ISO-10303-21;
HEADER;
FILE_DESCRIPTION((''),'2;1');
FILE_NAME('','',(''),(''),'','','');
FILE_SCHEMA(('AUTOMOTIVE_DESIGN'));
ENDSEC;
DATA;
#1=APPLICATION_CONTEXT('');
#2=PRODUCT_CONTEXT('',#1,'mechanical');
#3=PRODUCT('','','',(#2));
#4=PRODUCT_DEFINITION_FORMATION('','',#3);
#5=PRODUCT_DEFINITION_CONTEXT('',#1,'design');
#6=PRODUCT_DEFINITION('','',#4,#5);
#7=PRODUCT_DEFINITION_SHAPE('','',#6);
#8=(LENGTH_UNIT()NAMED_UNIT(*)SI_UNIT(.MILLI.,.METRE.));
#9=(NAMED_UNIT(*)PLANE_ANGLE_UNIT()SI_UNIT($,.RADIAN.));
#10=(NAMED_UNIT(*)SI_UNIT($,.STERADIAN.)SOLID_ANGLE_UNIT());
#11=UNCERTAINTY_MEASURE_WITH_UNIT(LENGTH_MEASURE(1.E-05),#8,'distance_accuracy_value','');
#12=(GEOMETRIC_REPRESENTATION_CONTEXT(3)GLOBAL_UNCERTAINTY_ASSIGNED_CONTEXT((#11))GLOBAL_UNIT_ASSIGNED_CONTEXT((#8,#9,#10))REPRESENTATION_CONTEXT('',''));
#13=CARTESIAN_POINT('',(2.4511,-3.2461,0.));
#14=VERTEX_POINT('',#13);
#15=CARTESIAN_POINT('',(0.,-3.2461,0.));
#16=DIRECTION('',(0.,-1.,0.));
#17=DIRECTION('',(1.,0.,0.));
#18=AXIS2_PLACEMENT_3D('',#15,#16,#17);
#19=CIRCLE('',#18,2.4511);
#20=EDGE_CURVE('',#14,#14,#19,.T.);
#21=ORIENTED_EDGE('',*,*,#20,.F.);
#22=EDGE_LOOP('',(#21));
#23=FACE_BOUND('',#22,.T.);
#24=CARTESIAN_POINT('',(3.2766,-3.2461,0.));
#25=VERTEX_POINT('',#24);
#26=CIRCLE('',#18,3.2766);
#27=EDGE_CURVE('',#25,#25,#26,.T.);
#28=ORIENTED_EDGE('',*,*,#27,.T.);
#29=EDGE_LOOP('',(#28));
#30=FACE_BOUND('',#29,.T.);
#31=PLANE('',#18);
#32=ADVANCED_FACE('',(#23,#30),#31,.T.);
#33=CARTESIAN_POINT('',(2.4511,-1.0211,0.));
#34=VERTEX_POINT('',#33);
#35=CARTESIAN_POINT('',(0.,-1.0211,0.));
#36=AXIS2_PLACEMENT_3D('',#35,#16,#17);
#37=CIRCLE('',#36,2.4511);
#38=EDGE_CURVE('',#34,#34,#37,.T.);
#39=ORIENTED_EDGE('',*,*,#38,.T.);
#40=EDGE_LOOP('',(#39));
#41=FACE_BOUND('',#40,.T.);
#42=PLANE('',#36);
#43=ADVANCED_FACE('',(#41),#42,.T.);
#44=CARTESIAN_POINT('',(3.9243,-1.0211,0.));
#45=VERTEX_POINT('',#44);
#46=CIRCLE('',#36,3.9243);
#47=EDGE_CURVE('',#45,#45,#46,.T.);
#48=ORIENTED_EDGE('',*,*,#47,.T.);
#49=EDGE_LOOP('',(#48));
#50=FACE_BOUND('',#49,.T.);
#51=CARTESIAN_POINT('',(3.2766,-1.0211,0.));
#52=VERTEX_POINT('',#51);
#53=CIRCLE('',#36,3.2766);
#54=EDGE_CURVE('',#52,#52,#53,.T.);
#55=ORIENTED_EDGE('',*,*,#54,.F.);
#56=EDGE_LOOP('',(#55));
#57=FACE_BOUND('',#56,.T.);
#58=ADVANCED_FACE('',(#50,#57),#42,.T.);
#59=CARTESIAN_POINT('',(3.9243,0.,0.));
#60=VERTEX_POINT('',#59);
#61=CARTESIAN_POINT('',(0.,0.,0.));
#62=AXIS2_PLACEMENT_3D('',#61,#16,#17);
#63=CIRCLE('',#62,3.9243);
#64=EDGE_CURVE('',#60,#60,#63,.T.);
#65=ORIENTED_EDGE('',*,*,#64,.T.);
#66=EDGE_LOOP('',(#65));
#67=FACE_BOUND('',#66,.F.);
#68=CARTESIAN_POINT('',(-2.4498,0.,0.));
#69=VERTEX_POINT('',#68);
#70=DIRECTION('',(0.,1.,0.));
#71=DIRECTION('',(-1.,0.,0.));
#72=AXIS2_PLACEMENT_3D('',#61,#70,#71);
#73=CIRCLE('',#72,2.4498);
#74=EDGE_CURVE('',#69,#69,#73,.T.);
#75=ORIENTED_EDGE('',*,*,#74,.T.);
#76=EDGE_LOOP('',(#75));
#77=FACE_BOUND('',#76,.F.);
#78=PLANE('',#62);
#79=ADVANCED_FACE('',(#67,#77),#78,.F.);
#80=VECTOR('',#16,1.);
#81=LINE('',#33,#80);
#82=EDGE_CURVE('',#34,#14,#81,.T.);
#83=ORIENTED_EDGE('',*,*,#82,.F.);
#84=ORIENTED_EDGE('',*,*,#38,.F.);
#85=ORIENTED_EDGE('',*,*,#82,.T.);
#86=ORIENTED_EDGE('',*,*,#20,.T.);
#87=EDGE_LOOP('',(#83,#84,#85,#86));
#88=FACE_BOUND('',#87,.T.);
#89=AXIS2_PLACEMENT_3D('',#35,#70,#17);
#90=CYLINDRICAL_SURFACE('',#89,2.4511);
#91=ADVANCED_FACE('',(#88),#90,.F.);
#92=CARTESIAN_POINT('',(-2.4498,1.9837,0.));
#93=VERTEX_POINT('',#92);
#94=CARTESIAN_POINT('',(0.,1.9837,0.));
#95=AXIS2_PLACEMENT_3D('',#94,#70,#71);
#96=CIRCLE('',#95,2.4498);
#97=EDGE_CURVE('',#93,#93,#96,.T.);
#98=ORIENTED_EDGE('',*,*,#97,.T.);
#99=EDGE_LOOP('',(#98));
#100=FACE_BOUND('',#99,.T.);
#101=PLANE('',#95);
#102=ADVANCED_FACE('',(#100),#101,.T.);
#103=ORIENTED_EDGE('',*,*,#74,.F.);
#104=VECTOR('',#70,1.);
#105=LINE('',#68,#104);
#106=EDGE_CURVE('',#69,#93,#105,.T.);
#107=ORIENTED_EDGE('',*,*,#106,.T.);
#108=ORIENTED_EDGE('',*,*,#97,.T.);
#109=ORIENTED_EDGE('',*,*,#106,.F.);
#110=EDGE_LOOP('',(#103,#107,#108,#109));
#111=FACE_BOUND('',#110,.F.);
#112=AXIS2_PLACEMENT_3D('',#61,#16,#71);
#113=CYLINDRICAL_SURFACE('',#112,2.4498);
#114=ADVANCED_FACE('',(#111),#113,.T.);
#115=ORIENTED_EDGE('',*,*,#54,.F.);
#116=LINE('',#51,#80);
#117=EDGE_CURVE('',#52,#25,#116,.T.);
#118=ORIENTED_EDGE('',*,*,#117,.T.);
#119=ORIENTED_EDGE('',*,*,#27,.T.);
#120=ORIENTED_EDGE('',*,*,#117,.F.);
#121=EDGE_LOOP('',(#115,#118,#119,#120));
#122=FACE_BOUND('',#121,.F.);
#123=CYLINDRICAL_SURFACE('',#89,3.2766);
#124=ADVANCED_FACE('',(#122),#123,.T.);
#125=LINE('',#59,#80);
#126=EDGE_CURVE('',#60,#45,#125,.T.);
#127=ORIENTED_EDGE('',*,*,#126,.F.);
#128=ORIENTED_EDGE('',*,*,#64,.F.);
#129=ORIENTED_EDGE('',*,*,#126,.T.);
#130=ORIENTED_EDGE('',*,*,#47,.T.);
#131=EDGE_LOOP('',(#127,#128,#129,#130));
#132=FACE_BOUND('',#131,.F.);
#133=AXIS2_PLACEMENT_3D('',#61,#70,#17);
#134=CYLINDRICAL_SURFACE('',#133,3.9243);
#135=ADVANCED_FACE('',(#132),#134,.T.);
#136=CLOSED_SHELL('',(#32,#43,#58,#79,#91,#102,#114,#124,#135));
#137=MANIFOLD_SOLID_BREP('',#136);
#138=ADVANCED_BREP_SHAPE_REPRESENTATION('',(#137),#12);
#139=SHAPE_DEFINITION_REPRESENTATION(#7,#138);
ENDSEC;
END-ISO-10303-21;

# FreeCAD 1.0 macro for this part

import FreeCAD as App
import Part
import Sketcher

V = App.Vector
Q = App.Units.Quantity

doc = App.newDocument("Part")
body = doc.addObject("PartDesign::Body", "Body")

sketch1 = body.newObject("Sketcher::SketchObject", "Sketch")
sketch1.AttachmentSupport = (doc.getObject("XZ_Plane"), [""])
sketch1.MapMode = "FlatFace"
sketch1.addGeometry(Part.Circle(V(0, 0, 0), V(0, 0, 1), 2.4498), False)
sketch1.addConstraint([
    Sketcher.Constraint("Coincident", 0, 3, -1, 1),
    Sketcher.Constraint("Diameter", 0, Q("0.1929 in")),
])
pad1 = body.newObject("PartDesign::Pad", "Pad")
pad1.Profile = sketch1
pad1.Length = Q("0.0780984 in")
pad1.Reversed = True

sketch2 = body.newObject("Sketcher::SketchObject", "Sketch001")
sketch2.AttachmentSupport = (doc.getObject("XZ_Plane"), [""])
sketch2.MapMode = "FlatFace"
sketch2.addGeometry(Part.Circle(V(0, 0, 0), V(0, 0, 1), 3.9243), False)
sketch2.addConstraint([
    Sketcher.Constraint("Coincident", 0, 3, -1, 1),
    Sketcher.Constraint("Diameter", 0, Q("0.309 in")),
])
pad2 = body.newObject("PartDesign::Pad", "Pad001")
pad2.Profile = sketch2
pad2.Length = Q("0.0402008 in")

sketch3 = body.newObject("Sketcher::SketchObject", "Sketch002")
sketch3.AttachmentSupport = (doc.getObject("XZ_Plane"), [""])
sketch3.MapMode = "FlatFace"
sketch3.AttachmentOffset = App.Placement(V(0, 0, 0.0402008 * 25.4), App.Rotation())
sketch3.addGeometry([
    Part.Circle(V(0, 0, 0), V(0, 0, 1), 3.2766),
    Part.Circle(V(0, 0, 0), V(0, 0, 1), 2.4511),
], False)
sketch3.addConstraint([
    Sketcher.Constraint("Coincident", 0, 3, -1, 1),
    Sketcher.Constraint("Coincident", 1, 3, -1, 1),
    Sketcher.Constraint("Diameter", 0, Q("0.258 in")),
    Sketcher.Constraint("Diameter", 1, Q("0.193 in")),
])
pad3 = body.newObject("PartDesign::Pad", "Pad002")
pad3.Profile = sketch3
pad3.Length = Q("0.0875984 in")

doc.recompute()
